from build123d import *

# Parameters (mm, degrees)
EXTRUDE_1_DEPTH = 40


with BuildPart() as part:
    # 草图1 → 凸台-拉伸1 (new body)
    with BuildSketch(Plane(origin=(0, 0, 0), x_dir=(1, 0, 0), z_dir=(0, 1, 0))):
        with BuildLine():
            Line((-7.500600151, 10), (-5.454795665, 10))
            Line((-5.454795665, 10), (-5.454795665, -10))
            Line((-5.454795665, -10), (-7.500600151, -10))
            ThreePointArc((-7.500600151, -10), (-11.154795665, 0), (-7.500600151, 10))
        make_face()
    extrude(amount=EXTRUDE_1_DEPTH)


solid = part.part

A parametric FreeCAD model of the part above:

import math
import FreeCAD as App
import Part
import Sketcher

V = App.Vector

doc = App.newDocument("Part")
body = doc.addObject("PartDesign::Body", "Body")

# Sketch on XZ plane
sketch1 = body.newObject("Sketcher::SketchObject", "Sketch")
sketch1.AttachmentSupport = (doc.getObject("XZ_Plane"), [""])
sketch1.MapMode = "FlatFace"
sketch1.addGeometry([
    Part.LineSegment(V(-5.5, -10, 0), V(-7.5, -10, 0)),
    Part.ArcOfCircle(Part.Circle(V(4.4, 0, 0), V(0, 0, 1), 15.5), math.radians(140), math.radians(220)),
    Part.LineSegment(V(-7.5, 10, 0), V(-5.5, 10, 0)),
    Part.LineSegment(V(-5.5, 10, 0), V(-5.5, -10, 0)),
], False)
sketch1.addConstraint([
    Sketcher.Constraint("Coincident", 0, 2, 1, 2),
    Sketcher.Constraint("Coincident", 1, 1, 2, 1),
    Sketcher.Constraint("Coincident", 2, 2, 3, 1),
    Sketcher.Constraint("Coincident", 3, 2, 0, 1),
    Sketcher.Constraint("Horizontal", 0),
    Sketcher.Constraint("Horizontal", 2),
    Sketcher.Constraint("Vertical", 3),
    Sketcher.Constraint("Symmetric", 0, 2, 1, 1, -1),
    Sketcher.Constraint("DistanceY", 3, 2, 3, 1, 20.0),
    Sketcher.Constraint("Radius", 1, 15.51),
    Sketcher.Constraint("DistanceX", 2, 2, 1, 3, 9.81),
    Sketcher.Constraint("DistanceX", 0, 2, -1, 1, 7.5006),
])
pad1 = body.newObject("PartDesign::Pad", "Pad")
pad1.Profile = sketch1
pad1.Length = 40
pad1.Reversed = True

doc.recompute()
